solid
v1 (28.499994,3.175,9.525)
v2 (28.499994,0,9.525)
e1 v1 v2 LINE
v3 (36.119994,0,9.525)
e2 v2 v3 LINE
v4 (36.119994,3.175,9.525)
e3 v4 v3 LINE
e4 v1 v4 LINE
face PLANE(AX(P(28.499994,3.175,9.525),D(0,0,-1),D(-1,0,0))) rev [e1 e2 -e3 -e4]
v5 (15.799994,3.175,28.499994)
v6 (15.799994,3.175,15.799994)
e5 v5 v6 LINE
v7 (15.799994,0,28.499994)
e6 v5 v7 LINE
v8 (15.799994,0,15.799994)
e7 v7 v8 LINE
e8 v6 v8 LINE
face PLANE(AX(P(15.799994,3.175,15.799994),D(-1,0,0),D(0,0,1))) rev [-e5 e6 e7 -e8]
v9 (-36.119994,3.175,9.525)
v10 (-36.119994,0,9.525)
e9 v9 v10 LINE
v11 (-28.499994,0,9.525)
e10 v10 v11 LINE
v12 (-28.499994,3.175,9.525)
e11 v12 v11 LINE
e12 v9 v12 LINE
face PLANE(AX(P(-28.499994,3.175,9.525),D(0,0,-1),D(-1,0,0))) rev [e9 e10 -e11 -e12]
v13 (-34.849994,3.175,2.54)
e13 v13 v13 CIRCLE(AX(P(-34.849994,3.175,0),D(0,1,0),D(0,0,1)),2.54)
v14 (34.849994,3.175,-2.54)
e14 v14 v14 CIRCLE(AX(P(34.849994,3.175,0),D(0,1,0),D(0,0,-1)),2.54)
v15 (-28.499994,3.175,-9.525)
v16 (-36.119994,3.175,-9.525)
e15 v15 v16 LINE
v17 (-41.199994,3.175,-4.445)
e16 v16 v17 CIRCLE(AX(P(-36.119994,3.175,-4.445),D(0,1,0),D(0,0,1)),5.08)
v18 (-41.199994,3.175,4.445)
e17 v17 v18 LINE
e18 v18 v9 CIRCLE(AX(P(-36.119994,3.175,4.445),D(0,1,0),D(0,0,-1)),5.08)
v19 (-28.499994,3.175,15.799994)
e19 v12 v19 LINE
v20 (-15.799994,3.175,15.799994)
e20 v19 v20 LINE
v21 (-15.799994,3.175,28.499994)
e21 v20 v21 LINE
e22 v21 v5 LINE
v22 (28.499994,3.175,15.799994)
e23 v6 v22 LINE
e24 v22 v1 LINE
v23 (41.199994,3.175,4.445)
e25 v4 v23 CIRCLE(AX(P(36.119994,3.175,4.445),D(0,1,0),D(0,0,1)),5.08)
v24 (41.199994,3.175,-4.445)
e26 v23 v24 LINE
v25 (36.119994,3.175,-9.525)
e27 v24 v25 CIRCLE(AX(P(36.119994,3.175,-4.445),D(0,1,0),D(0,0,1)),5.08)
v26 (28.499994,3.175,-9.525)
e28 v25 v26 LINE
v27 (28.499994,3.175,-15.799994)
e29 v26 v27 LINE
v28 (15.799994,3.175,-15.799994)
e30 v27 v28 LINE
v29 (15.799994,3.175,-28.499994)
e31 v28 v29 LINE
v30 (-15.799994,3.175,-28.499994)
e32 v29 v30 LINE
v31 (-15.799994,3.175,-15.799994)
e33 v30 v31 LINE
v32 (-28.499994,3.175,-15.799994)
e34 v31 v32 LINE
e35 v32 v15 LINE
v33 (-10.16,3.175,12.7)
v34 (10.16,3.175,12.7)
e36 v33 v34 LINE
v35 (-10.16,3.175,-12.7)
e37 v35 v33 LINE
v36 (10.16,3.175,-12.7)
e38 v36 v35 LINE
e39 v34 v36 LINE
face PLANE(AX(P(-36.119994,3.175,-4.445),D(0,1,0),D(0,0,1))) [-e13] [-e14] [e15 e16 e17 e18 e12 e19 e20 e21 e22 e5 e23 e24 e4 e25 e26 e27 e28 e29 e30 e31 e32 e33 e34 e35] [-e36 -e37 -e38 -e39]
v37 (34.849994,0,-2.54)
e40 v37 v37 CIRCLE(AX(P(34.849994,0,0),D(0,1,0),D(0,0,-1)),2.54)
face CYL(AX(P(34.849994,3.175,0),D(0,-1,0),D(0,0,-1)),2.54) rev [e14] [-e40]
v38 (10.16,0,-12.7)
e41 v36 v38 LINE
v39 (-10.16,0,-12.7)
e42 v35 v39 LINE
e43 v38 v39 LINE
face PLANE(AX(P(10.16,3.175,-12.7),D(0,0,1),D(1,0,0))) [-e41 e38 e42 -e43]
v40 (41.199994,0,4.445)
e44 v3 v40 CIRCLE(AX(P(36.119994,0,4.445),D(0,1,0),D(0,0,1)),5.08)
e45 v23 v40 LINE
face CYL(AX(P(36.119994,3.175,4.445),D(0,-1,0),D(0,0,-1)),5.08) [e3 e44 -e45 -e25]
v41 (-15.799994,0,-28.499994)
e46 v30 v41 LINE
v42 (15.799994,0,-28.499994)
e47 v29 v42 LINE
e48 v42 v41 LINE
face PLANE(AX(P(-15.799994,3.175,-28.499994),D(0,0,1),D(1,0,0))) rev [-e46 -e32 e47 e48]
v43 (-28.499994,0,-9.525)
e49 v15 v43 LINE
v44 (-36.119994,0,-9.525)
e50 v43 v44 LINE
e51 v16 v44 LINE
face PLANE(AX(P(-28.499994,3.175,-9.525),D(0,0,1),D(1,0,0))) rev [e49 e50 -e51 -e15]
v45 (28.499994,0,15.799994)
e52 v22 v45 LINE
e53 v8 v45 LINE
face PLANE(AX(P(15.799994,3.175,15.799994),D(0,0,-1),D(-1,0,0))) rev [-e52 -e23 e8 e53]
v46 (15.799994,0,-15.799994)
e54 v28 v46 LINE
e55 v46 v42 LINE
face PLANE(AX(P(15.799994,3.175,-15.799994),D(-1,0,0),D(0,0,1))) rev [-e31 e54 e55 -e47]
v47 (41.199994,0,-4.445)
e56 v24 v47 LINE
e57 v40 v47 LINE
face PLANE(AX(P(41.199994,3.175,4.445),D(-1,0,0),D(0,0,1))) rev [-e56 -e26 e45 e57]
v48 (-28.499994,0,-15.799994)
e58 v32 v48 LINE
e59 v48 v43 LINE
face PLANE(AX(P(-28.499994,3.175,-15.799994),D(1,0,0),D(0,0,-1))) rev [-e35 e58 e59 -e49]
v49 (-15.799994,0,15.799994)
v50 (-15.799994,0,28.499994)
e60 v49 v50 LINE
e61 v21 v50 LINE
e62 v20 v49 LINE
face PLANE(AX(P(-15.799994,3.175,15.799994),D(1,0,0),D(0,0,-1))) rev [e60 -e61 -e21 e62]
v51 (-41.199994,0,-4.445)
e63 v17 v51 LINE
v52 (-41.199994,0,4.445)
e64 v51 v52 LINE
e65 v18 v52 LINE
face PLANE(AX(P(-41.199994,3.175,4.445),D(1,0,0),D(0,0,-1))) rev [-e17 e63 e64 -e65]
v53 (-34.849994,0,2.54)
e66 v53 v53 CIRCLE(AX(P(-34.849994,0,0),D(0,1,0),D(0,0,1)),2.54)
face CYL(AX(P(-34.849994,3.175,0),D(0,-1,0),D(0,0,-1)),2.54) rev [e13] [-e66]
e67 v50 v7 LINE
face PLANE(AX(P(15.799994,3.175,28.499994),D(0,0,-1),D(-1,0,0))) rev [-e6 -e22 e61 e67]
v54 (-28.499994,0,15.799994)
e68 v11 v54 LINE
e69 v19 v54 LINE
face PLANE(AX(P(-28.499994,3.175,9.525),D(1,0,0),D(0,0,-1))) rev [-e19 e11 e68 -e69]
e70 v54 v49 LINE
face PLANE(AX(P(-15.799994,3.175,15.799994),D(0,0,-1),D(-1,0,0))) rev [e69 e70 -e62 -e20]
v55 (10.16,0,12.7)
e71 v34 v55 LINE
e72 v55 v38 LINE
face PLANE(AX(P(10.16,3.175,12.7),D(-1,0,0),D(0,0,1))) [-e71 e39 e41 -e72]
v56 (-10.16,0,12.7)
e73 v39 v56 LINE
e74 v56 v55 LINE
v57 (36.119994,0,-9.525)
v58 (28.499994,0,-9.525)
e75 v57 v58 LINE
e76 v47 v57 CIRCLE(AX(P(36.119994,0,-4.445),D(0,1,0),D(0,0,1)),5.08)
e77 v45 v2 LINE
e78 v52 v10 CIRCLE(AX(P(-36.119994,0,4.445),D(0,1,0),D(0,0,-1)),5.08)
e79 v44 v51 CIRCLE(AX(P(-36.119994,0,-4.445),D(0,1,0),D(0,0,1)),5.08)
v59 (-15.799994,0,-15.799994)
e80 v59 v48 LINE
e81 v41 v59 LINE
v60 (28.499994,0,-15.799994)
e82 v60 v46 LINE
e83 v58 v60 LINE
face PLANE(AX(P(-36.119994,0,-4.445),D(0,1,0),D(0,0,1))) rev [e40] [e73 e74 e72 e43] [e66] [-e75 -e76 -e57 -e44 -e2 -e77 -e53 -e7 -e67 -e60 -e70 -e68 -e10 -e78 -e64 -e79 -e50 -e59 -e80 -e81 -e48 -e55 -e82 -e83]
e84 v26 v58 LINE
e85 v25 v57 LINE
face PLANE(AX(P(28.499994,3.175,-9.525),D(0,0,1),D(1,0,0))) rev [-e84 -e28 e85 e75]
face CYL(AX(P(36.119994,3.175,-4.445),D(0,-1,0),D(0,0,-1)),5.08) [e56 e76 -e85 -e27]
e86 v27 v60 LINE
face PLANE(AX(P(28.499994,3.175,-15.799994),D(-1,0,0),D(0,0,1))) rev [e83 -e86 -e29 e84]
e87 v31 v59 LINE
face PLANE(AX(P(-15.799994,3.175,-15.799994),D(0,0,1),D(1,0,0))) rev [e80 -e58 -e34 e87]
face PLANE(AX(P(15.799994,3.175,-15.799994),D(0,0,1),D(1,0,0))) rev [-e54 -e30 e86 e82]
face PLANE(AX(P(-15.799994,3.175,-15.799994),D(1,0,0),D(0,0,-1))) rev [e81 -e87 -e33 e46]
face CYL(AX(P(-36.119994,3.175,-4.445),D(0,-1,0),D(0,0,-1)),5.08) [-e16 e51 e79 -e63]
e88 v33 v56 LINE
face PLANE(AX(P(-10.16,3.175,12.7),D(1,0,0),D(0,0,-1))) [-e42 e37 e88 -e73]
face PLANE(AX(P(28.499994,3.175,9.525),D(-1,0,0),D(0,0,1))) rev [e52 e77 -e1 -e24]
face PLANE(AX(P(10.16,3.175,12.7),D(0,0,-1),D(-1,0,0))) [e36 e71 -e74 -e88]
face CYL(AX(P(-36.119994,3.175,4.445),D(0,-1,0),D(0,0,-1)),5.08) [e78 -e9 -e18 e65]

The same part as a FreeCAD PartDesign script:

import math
import FreeCAD as App
import Part
import Sketcher
from FreeCAD import Vector
Q = App.Units.Quantity

doc = App.newDocument("Part")
body = doc.addObject("PartDesign::Body", "Body")

# Sketch on XZ plane
sketch1 = doc.addObject("Sketcher::SketchObject", "Sketch")
body.addObject(sketch1)
sketch1.AttachmentSupport = (doc.XZ_Plane, [""])
sketch1.MapMode = "FlatFace"
sketch1.addGeometry(Part.LineSegment(Vector(-28.5, -15.8, 0), Vector(-28.5, -9.5, 0)), False)
sketch1.addGeometry(Part.LineSegment(Vector(-28.5, -9.5, 0), Vector(-36.1, -9.5, 0)), False)
sketch1.addGeometry(Part.ArcOfCircle(Part.Circle(Vector(-36.1, -4.4, 0), Vector(0, 0, 1), 5.1), math.radians(-180), math.radians(-90)), False)
sketch1.addGeometry(Part.LineSegment(Vector(-41.2, -4.4, 0), Vector(-41.2, 4.4, 0)), False)
sketch1.addGeometry(Part.ArcOfCircle(Part.Circle(Vector(-36.1, 4.4, 0), Vector(0, 0, 1), 5.1), math.radians(90), math.radians(180)), False)
sketch1.addGeometry(Part.LineSegment(Vector(-36.1, 9.5, 0), Vector(-28.5, 9.5, 0)), False)
sketch1.addGeometry(Part.LineSegment(Vector(-28.5, 9.5, 0), Vector(-28.5, 15.8, 0)), False)
sketch1.addGeometry(Part.LineSegment(Vector(-28.5, 15.8, 0), Vector(-15.8, 15.8, 0)), False)
sketch1.addGeometry(Part.LineSegment(Vector(-15.8, 15.8, 0), Vector(-15.8, 28.5, 0)), False)
sketch1.addGeometry(Part.LineSegment(Vector(-15.8, 28.5, 0), Vector(15.8, 28.5, 0)), False)
sketch1.addGeometry(Part.LineSegment(Vector(15.8, 28.5, 0), Vector(15.8, 15.8, 0)), False)
sketch1.addGeometry(Part.LineSegment(Vector(15.8, 15.8, 0), Vector(28.5, 15.8, 0)), False)
sketch1.addGeometry(Part.LineSegment(Vector(28.5, 15.8, 0), Vector(28.5, 9.5, 0)), False)
sketch1.addGeometry(Part.LineSegment(Vector(28.5, 9.5, 0), Vector(36.1, 9.5, 0)), False)
sketch1.addGeometry(Part.ArcOfCircle(Part.Circle(Vector(36.1, 4.4, 0), Vector(0, 0, 1), 5.1), math.radians(0), math.radians(90)), False)
sketch1.addGeometry(Part.LineSegment(Vector(41.2, 4.4, 0), Vector(41.2, -4.4, 0)), False)
sketch1.addGeometry(Part.ArcOfCircle(Part.Circle(Vector(36.1, -4.4, 0), Vector(0, 0, 1), 5.1), math.radians(-90), math.radians(0)), False)
sketch1.addGeometry(Part.LineSegment(Vector(36.1, -9.5, 0), Vector(28.5, -9.5, 0)), False)
sketch1.addGeometry(Part.LineSegment(Vector(28.5, -9.5, 0), Vector(28.5, -15.8, 0)), False)
sketch1.addGeometry(Part.LineSegment(Vector(28.5, -15.8, 0), Vector(15.8, -15.8, 0)), False)
sketch1.addGeometry(Part.LineSegment(Vector(15.8, -15.8, 0), Vector(15.8, -28.5, 0)), False)
sketch1.addGeometry(Part.LineSegment(Vector(15.8, -28.5, 0), Vector(-15.8, -28.5, 0)), False)
sketch1.addGeometry(Part.LineSegment(Vector(-15.8, -28.5, 0), Vector(-15.8, -15.8, 0)), False)
sketch1.addGeometry(Part.LineSegment(Vector(-15.8, -15.8, 0), Vector(-28.5, -15.8, 0)), False)
sketch1.addGeometry(Part.Circle(Vector(-34.8, 0, 0), Vector(0, 0, 1), 2.5), False)
sketch1.addGeometry(Part.LineSegment(Vector(10.2, 12.7, 0), Vector(-10.2, 12.7, 0)), False)
sketch1.addGeometry(Part.LineSegment(Vector(-10.2, 12.7, 0), Vector(-10.2, -12.7, 0)), False)
sketch1.addGeometry(Part.LineSegment(Vector(-10.2, -12.7, 0), Vector(10.2, -12.7, 0)), False)
sketch1.addGeometry(Part.LineSegment(Vector(10.2, -12.7, 0), Vector(10.2, 12.7, 0)), False)
sketch1.addGeometry(Part.Circle(Vector(34.8, 0, 0), Vector(0, 0, 1), 2.5), False)
sketch1.addConstraint(Sketcher.Constraint("Coincident", 0, 2, 1, 1))
sketch1.addConstraint(Sketcher.Constraint("Tangent", 1, 2, 2, 2))
sketch1.addConstraint(Sketcher.Constraint("Tangent", 2, 1, 3, 1))
sketch1.addConstraint(Sketcher.Constraint("Tangent", 3, 2, 4, 2))
sketch1.addConstraint(Sketcher.Constraint("Tangent", 4, 1, 5, 1))
sketch1.addConstraint(Sketcher.Constraint("Coincident", 5, 2, 6, 1))
sketch1.addConstraint(Sketcher.Constraint("Coincident", 6, 2, 7, 1))
sketch1.addConstraint(Sketcher.Constraint("Coincident", 7, 2, 8, 1))
sketch1.addConstraint(Sketcher.Constraint("Coincident", 8, 2, 9, 1))
sketch1.addConstraint(Sketcher.Constraint("Coincident", 9, 2, 10, 1))
sketch1.addConstraint(Sketcher.Constraint("Coincident", 10, 2, 11, 1))
sketch1.addConstraint(Sketcher.Constraint("Coincident", 11, 2, 12, 1))
sketch1.addConstraint(Sketcher.Constraint("Coincident", 12, 2, 13, 1))
sketch1.addConstraint(Sketcher.Constraint("Tangent", 13, 2, 14, 2))
sketch1.addConstraint(Sketcher.Constraint("Tangent", 14, 1, 15, 1))
sketch1.addConstraint(Sketcher.Constraint("Tangent", 15, 2, 16, 2))
sketch1.addConstraint(Sketcher.Constraint("Tangent", 16, 1, 17, 1))
sketch1.addConstraint(Sketcher.Constraint("Coincident", 17, 2, 18, 1))
sketch1.addConstraint(Sketcher.Constraint("Coincident", 18, 2, 19, 1))
sketch1.addConstraint(Sketcher.Constraint("Coincident", 19, 2, 20, 1))
sketch1.addConstraint(Sketcher.Constraint("Coincident", 20, 2, 21, 1))
sketch1.addConstraint(Sketcher.Constraint("Coincident", 21, 2, 22, 1))
sketch1.addConstraint(Sketcher.Constraint("Coincident", 22, 2, 23, 1))
sketch1.addConstraint(Sketcher.Constraint("Coincident", 23, 2, 0, 1))
sketch1.addConstraint(Sketcher.Constraint("Coincident", 25, 2, 26, 1))
sketch1.addConstraint(Sketcher.Constraint("Coincident", 26, 2, 27, 1))
sketch1.addConstraint(Sketcher.Constraint("Coincident", 27, 2, 28, 1))
sketch1.addConstraint(Sketcher.Constraint("Coincident", 28, 2, 25, 1))
sketch1.addConstraint(Sketcher.Constraint("Vertical", 0))
sketch1.addConstraint(Sketcher.Constraint("Horizontal", 1))
sketch1.addConstraint(Sketcher.Constraint("Vertical", 3))
sketch1.addConstraint(Sketcher.Constraint("Horizontal", 5))
sketch1.addConstraint(Sketcher.Constraint("Vertical", 6))
sketch1.addConstraint(Sketcher.Constraint("Horizontal", 7))
sketch1.addConstraint(Sketcher.Constraint("Vertical", 8))
sketch1.addConstraint(Sketcher.Constraint("Horizontal", 9))
sketch1.addConstraint(Sketcher.Constraint("Vertical", 10))
sketch1.addConstraint(Sketcher.Constraint("Horizontal", 11))
sketch1.addConstraint(Sketcher.Constraint("Vertical", 12))
sketch1.addConstraint(Sketcher.Constraint("Horizontal", 13))
sketch1.addConstraint(Sketcher.Constraint("Vertical", 15))
sketch1.addConstraint(Sketcher.Constraint("Horizontal", 17))
sketch1.addConstraint(Sketcher.Constraint("Vertical", 18))
sketch1.addConstraint(Sketcher.Constraint("Horizontal", 19))
sketch1.addConstraint(Sketcher.Constraint("Vertical", 20))
sketch1.addConstraint(Sketcher.Constraint("Horizontal", 21))
sketch1.addConstraint(Sketcher.Constraint("Vertical", 22))
sketch1.addConstraint(Sketcher.Constraint("Horizontal", 23))
sketch1.addConstraint(Sketcher.Constraint("Horizontal", 25))
sketch1.addConstraint(Sketcher.Constraint("Vertical", 26))
sketch1.addConstraint(Sketcher.Constraint("Horizontal", 27))
sketch1.addConstraint(Sketcher.Constraint("Vertical", 28))
sketch1.addConstraint(Sketcher.Constraint("Equal", 2, 4))
sketch1.addConstraint(Sketcher.Constraint("Equal", 4, 14))
sketch1.addConstraint(Sketcher.Constraint("Equal", 14, 16))
sketch1.addConstraint(Sketcher.Constraint("Equal", 24, 29))
sketch1.addConstraint(Sketcher.Constraint("Symmetric", 2, 3, 14, 3, -1, 1))
sketch1.addConstraint(Sketcher.Constraint("Symmetric", 24, 3, 29, 3, -1, 1))
sketch1.addConstraint(Sketcher.Constraint("Symmetric", 5, 2, 17, 2, -1, 1))
sketch1.addConstraint(Sketcher.Constraint("Symmetric", 7, 2, 19, 2, -1, 1))
sketch1.addConstraint(Sketcher.Constraint("Symmetric", 9, 2, 21, 2, -1, 1))
sketch1.addConstraint(Sketcher.Constraint("Symmetric", 11, 2, 23, 2, -1, 1))
sketch1.addConstraint(Sketcher.Constraint("Symmetric", 25, 2, 27, 2, -1, 1))
sketch1.addConstraint(Sketcher.Constraint("Symmetric", 7, 2, 10, 2, -2))
sketch1.addConstraint(Sketcher.Constraint("Symmetric", 5, 2, 12, 2, -2))
sketch1.addConstraint(Sketcher.Constraint("PointOnObject", 24, 3, -1))
sketch1.addConstraint(Sketcher.Constraint("Equal", 23, 8))
sketch1.addConstraint(Sketcher.Constraint("Diameter", 24, Q("0.2 in")))
sketch1.addConstraint(Sketcher.Constraint("Radius", 2, Q("0.2 in")))
sketch1.addConstraint(Sketcher.Constraint("DistanceY", 26, 2, 26, 1, Q("1 in")))
sketch1.addConstraint(Sketcher.Constraint("DistanceX", 1, 2, 1, 1, Q("0.3 in")))
sketch1.addConstraint(Sketcher.Constraint("DistanceX", 7, 1, 7, 2, Q("0.5 in")))
sketch1.addConstraint(Sketcher.Constraint("DistanceX", 25, 2, 25, 1, Q("0.8 in")))
sketch1.addConstraint(Sketcher.Constraint("DistanceY", 3, 1, 3, 2, Q("0.35 in")))
sketch1.addConstraint(Sketcher.Constraint("DistanceX", 2, 3, 24, 3, Q("0.05 in")))
sketch1.addConstraint(Sketcher.Constraint("DistanceX", 9, 1, 9, 2, Q("31.599988 mm")))
sketch1.addConstraint(Sketcher.Constraint("DistanceY", 0, 1, 0, 2, Q("6.274994 mm")))
pad1 = doc.addObject("PartDesign::Pad", "Pad")
body.addObject(pad1)
pad1.Profile = sketch1
pad1.Length = Q("0.125 in")
pad1.Reversed = True

doc.recompute()
